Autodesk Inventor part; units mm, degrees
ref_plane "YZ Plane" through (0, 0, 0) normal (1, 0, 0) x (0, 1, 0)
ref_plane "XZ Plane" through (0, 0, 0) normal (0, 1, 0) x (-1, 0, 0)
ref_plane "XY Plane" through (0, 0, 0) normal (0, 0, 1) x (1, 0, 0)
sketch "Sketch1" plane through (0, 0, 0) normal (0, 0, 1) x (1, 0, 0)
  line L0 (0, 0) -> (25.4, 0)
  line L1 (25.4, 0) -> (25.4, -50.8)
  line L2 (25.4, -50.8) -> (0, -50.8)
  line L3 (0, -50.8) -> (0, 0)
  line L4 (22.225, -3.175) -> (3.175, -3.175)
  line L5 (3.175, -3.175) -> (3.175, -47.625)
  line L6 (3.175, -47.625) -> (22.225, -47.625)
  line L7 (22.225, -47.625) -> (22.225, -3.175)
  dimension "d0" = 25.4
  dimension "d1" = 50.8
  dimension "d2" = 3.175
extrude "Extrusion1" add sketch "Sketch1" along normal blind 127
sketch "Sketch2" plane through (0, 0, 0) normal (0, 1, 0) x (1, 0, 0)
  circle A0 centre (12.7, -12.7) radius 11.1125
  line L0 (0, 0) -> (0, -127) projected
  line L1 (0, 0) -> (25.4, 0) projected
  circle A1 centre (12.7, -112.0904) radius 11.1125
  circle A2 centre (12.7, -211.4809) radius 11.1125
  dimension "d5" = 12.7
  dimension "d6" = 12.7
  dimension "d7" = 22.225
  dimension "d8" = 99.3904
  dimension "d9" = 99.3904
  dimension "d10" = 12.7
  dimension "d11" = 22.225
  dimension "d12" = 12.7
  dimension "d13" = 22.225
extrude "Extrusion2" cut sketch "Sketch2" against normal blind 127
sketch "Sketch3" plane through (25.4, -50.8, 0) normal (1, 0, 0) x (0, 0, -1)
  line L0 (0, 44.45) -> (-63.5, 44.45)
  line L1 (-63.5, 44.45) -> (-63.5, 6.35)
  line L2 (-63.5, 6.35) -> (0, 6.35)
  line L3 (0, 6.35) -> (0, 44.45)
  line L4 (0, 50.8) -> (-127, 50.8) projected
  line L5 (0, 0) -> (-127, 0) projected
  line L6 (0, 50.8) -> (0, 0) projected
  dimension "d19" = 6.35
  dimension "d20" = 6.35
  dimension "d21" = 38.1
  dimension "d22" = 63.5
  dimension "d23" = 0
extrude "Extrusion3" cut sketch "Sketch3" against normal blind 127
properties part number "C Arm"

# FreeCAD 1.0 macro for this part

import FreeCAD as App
import Part
import Sketcher
Q = App.Units.Quantity


def add_polygon(sketch, points):
    """Adds a closed chain of lines whose ends are joined by coincident constraints."""
    first, n = sketch.GeometryCount, len(points)
    for a, b in zip(points, points[1:] + points[:1]):
        sketch.addGeometry(Part.LineSegment(App.Vector(*a, 0), App.Vector(*b, 0)), False)
    for i in range(n):
        sketch.addConstraint(Sketcher.Constraint("Coincident", first + i, 2, first + (i + 1) % n, 1))

doc = App.newDocument("Part")
body = doc.addObject("PartDesign::Body", "Body")

# Sketch on XY plane
sketch1 = body.newObject("Sketcher::SketchObject", "Sketch")
sketch1.AttachmentSupport = (doc.getObject("XY_Plane"), [""])
sketch1.MapMode = "FlatFace"
add_polygon(sketch1, [(25, 0), (0, 0), (0, -51), (25, -51)])  # lines 0-3
add_polygon(sketch1, [(3, -3), (22, -3), (22, -48), (3, -48)])  # lines 4-7
sketch1.addConstraint(Sketcher.Constraint("Horizontal", 0))
sketch1.addConstraint(Sketcher.Constraint("Vertical", 1))
sketch1.addConstraint(Sketcher.Constraint("Horizontal", 2))
sketch1.addConstraint(Sketcher.Constraint("Vertical", 3))
sketch1.addConstraint(Sketcher.Constraint("Horizontal", 4))
sketch1.addConstraint(Sketcher.Constraint("Vertical", 5))
sketch1.addConstraint(Sketcher.Constraint("Horizontal", 6))
sketch1.addConstraint(Sketcher.Constraint("Vertical", 7))
sketch1.addConstraint(Sketcher.Constraint("Coincident", 0, 2, -1, 1))
sketch1.addConstraint(Sketcher.Constraint("DistanceX", 0, 2, 0, 1, Q("1 in")))
sketch1.addConstraint(Sketcher.Constraint("DistanceY", 1, 2, 1, 1, Q("2 in")))
sketch1.addConstraint(Sketcher.Constraint("DistanceY", 4, 2, -1, 1, Q("0.125 in")))
sketch1.addConstraint(Sketcher.Constraint("DistanceX", -1, 1, 6, 2, Q("0.125 in")))
sketch1.addConstraint(Sketcher.Constraint("DistanceX", 4, 2, 3, 2, Q("0.125 in")))
sketch1.addConstraint(Sketcher.Constraint("DistanceY", 2, 2, 5, 2, Q("0.125 in")))
pad1 = body.newObject("PartDesign::Pad", "Pad")
pad1.Profile = sketch1
pad1.Length = Q("5 in")

# Sketch on XZ plane
sketch2 = body.newObject("Sketcher::SketchObject", "Sketch001")
sketch2.AttachmentSupport = (doc.getObject("XZ_Plane"), [""])
sketch2.MapMode = "FlatFace"
sketch2.addGeometry(Part.Circle(App.Vector(13, 13, 0), App.Vector(0, 0, 1), 11), False)
sketch2.addGeometry(Part.Circle(App.Vector(13, 112, 0), App.Vector(0, 0, 1), 11), False)
sketch2.addGeometry(Part.Circle(App.Vector(13, 211, 0), App.Vector(0, 0, 1), 11), False)
sketch2.addConstraint(Sketcher.Constraint("Equal", 0, 1))
sketch2.addConstraint(Sketcher.Constraint("Equal", 1, 2))
sketch2.addConstraint(Sketcher.Constraint("Vertical", 0, 3, 1, 3))
sketch2.addConstraint(Sketcher.Constraint("Vertical", 1, 3, 2, 3))
sketch2.addConstraint(Sketcher.Constraint("Diameter", 0, Q("0.875 in")))
sketch2.addConstraint(Sketcher.Constraint("DistanceX", -1, 1, 0, 3, Q("0.5 in")))
sketch2.addConstraint(Sketcher.Constraint("DistanceY", -1, 1, 0, 3, Q("0.5 in")))
sketch2.addConstraint(Sketcher.Constraint("DistanceY", 0, 3, 1, 3, Q("3.913 in")))
sketch2.addConstraint(Sketcher.Constraint("DistanceY", 1, 3, 2, 3, Q("3.913 in")))
pocket1 = body.newObject("PartDesign::Pocket", "Pocket")
pocket1.Profile = sketch2
pocket1.Length = Q("5 in")
pocket1.Reversed = True

# Sketch on YZ plane
sketch3 = body.newObject("Sketcher::SketchObject", "Sketch002")
sketch3.AttachmentSupport = (doc.getObject("YZ_Plane"), [""])
sketch3.MapMode = "FlatFace"
sketch3.AttachmentOffset = App.Placement(App.Vector(0, 0, 1 * 25.4), App.Rotation())
add_polygon(sketch3, [(-44, 0), (-6, 0), (-6, 64), (-44, 64)])  # lines 0-3
sketch3.addConstraint(Sketcher.Constraint("Horizontal", 0))
sketch3.addConstraint(Sketcher.Constraint("Vertical", 1))
sketch3.addConstraint(Sketcher.Constraint("Horizontal", 2))
sketch3.addConstraint(Sketcher.Constraint("Vertical", 3))
sketch3.addConstraint(Sketcher.Constraint("PointOnObject", 0, 2, -1))
sketch3.addConstraint(Sketcher.Constraint("DistanceX", 0, 1, 0, 2, Q("1.5 in")))
sketch3.addConstraint(Sketcher.Constraint("DistanceY", 1, 1, 1, 2, Q("2.5 in")))
sketch3.addConstraint(Sketcher.Constraint("DistanceX", 0, 2, -1, 1, Q("0.25 in")))
pocket2 = body.newObject("PartDesign::Pocket", "Pocket001")
pocket2.Profile = sketch3
pocket2.Length = Q("5 in")

doc.recompute()
